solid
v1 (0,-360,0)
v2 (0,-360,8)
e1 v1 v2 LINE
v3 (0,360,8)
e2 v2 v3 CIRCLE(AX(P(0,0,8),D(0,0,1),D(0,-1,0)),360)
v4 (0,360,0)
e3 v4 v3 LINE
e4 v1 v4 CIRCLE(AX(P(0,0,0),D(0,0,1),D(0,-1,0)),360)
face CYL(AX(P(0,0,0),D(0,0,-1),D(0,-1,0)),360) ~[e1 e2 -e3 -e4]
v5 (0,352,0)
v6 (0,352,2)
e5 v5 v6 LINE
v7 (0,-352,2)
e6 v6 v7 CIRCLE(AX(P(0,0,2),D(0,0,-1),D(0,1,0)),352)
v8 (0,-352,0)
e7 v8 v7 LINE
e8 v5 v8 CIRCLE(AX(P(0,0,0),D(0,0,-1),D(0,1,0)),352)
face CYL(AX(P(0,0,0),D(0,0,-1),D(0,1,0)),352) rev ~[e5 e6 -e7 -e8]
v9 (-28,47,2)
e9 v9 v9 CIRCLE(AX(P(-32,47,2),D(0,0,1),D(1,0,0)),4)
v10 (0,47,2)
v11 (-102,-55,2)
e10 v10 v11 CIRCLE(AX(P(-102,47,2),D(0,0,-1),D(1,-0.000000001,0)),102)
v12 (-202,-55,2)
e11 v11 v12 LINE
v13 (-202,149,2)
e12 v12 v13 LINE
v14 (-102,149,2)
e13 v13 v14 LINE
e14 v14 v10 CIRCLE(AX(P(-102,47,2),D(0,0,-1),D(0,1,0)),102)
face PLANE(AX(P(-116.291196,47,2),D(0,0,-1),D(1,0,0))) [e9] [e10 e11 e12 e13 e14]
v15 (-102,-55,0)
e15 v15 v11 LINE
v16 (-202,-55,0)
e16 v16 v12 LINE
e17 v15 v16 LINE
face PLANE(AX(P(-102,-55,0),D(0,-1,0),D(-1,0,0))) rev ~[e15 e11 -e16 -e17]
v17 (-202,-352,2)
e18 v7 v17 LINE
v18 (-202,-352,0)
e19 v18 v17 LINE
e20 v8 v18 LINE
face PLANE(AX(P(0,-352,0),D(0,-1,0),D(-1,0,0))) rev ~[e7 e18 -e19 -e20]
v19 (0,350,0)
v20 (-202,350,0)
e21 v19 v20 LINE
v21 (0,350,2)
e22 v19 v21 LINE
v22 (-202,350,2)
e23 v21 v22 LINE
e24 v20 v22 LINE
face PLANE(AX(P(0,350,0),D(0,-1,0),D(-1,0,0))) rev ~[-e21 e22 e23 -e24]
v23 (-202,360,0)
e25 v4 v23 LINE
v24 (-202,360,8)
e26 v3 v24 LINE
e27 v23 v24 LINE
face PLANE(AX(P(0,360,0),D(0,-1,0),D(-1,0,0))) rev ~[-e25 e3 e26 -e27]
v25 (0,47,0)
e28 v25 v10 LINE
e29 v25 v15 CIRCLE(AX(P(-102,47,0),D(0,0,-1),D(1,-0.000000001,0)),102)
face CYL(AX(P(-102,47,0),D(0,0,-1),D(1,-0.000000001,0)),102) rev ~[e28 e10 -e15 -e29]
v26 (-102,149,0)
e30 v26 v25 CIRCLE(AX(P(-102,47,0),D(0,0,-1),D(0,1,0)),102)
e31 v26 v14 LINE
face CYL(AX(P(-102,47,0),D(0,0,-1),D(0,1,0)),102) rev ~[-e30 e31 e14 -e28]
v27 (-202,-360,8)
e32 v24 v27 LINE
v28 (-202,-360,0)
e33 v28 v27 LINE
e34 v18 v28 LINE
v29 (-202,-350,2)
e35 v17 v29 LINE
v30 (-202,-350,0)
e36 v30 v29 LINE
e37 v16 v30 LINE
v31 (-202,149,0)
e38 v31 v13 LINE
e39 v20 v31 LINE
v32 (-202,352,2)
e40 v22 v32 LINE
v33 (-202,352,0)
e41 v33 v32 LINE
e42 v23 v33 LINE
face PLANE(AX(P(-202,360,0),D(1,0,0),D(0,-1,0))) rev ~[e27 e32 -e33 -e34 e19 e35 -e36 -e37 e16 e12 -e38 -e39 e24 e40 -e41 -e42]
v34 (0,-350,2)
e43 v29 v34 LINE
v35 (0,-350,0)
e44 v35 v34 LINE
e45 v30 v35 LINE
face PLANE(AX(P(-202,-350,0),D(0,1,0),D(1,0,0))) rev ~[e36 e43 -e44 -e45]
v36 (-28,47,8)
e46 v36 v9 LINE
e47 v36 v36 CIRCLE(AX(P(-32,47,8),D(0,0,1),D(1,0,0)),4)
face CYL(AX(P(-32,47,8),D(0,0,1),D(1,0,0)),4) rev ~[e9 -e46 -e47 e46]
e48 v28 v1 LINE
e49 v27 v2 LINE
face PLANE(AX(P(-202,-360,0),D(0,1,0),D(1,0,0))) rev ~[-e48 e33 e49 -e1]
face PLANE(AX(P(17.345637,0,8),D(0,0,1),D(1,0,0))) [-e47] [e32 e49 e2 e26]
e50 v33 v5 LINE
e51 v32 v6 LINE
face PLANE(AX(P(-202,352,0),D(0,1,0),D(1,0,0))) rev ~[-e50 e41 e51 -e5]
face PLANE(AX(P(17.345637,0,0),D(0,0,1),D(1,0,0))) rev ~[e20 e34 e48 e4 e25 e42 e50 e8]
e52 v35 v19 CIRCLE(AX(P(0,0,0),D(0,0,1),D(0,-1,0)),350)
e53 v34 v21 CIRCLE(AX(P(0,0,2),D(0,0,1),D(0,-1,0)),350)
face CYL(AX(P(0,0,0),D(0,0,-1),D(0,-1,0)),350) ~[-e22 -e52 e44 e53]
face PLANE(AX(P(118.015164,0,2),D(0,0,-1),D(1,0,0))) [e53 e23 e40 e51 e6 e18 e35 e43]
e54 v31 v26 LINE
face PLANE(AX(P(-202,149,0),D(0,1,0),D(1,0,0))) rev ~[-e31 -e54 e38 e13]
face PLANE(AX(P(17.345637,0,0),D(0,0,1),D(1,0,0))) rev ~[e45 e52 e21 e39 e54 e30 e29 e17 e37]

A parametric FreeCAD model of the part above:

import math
import FreeCAD as App
import Part
import Sketcher

V = App.Vector
Q = App.Units.Quantity

doc = App.newDocument("Part")
params = doc.addObject("Spreadsheet::Sheet", "Params")
for row, (alias, value) in enumerate([
    ("sketch1_radius", "360 mm"),
    ("sketch1_width", "202 mm"),
    ("pad1_length", "8 mm"),
    ("sketch2_radius", "350 mm"),
    ("sketch2_radius2", "352 mm"),
    ("sketch2_width", "202 mm"),
    ("pocket1_length", "2 mm"),
    ("sketch3_diameter", "8 mm"),
    ("sketch4_radius", "102 mm"),
    ("sketch4_width", "100 mm"),
    ("pocket3_length", "2 mm"),
], start=1):
    params.set(f"A{row}", alias)
    params.set(f"B{row}", "=" + value)
    params.setAlias(f"B{row}", alias)

body = doc.addObject("PartDesign::Body", "Body")

# Sketch on XY plane
sketch1 = body.newObject("Sketcher::SketchObject", "Sketch")
sketch1.AttachmentSupport = (doc.getObject("XY_Plane"), [""])
sketch1.MapMode = "FlatFace"
sketch1.addGeometry([
    Part.ArcOfCircle(Part.Circle(V(0, 0, 0), V(0, 0, 1), 360), math.radians(-90), math.radians(90)),
    Part.LineSegment(V(0, 360, 0), V(-202, 360, 0)),
    Part.LineSegment(V(-202, 360, 0), V(-202, -360, 0)),
    Part.LineSegment(V(-202, -360, 0), V(0, -360, 0)),
], False)
sketch1.addConstraint([
    Sketcher.Constraint("Tangent", 0, 2, 1, 1),
    Sketcher.Constraint("Coincident", 1, 2, 2, 1),
    Sketcher.Constraint("Coincident", 2, 2, 3, 1),
    Sketcher.Constraint("Tangent", 3, 2, 0, 1),
    Sketcher.Constraint("Horizontal", 1),
    Sketcher.Constraint("Vertical", 2),
    Sketcher.Constraint("Horizontal", 3),
    Sketcher.Constraint("Coincident", 0, 3, -1, 1),
    Sketcher.Constraint("Radius", 0, Q("360 mm")),
    Sketcher.Constraint("DistanceX", 1, 2, 1, 1, Q("202 mm")),
])
sketch1.setExpression("Constraints[8]", "Params.sketch1_radius")
sketch1.setExpression("Constraints[9]", "Params.sketch1_width")
pad1 = body.newObject("PartDesign::Pad", "Pad")
pad1.Profile = sketch1
pad1.setExpression("Length", "Params.pad1_length")

# Sketch on XY plane
sketch2 = body.newObject("Sketcher::SketchObject", "Sketch001")
sketch2.AttachmentSupport = (doc.getObject("XY_Plane"), [""])
sketch2.MapMode = "FlatFace"
sketch2.addGeometry([
    Part.ArcOfCircle(Part.Circle(V(0, 0, 0), V(0, 0, 1), 350), math.radians(-90), math.radians(90)),  # 0
    Part.LineSegment(V(0, 350, 0), V(-202, 350, 0)),  # 1
    Part.LineSegment(V(-202, 350, 0), V(-202, 352, 0)),  # 2
    Part.LineSegment(V(-202, 352, 0), V(0, 352, 0)),  # 3
    Part.ArcOfCircle(Part.Circle(V(0, 0, 0), V(0, 0, 1), 352), math.radians(-90), math.radians(90)),  # 4
    Part.LineSegment(V(0, -352, 0), V(-202, -352, 0)),  # 5
    Part.LineSegment(V(-202, -352, 0), V(-202, -350, 0)),  # 6
    Part.LineSegment(V(-202, -350, 0), V(0, -350, 0)),  # 7
], False)
sketch2.addConstraint([
    Sketcher.Constraint("Tangent", 0, 2, 1, 1),
    Sketcher.Constraint("Coincident", 1, 2, 2, 1),
    Sketcher.Constraint("Coincident", 2, 2, 3, 1),
    Sketcher.Constraint("Tangent", 3, 2, 4, 2),
    Sketcher.Constraint("Tangent", 4, 1, 5, 1),
    Sketcher.Constraint("Coincident", 5, 2, 6, 1),
    Sketcher.Constraint("Coincident", 6, 2, 7, 1),
    Sketcher.Constraint("Tangent", 7, 2, 0, 1),
    Sketcher.Constraint("Horizontal", 1),
    Sketcher.Constraint("Vertical", 2),
    Sketcher.Constraint("Horizontal", 3),
    Sketcher.Constraint("Horizontal", 5),
    Sketcher.Constraint("Vertical", 6),
    Sketcher.Constraint("Horizontal", 7),
    Sketcher.Constraint("Coincident", 0, 3, -1, 1),
    Sketcher.Constraint("Coincident", 4, 3, -1, 1),
    Sketcher.Constraint("Vertical", 2, 2, 5, 2),
    Sketcher.Constraint("Radius", 0, Q("350 mm")),
    Sketcher.Constraint("Radius", 4, Q("352 mm")),
    Sketcher.Constraint("DistanceX", 1, 2, 1, 1, Q("202 mm")),
])
sketch2.setExpression("Constraints[17]", "Params.sketch2_radius")
sketch2.setExpression("Constraints[18]", "Params.sketch2_radius2")
sketch2.setExpression("Constraints[19]", "Params.sketch2_width")
pocket1 = body.newObject("PartDesign::Pocket", "Pocket")
pocket1.Profile = sketch2
pocket1.setExpression("Length", "Params.pocket1_length")
pocket1.Reversed = True

# Sketch on XY plane
sketch3 = body.newObject("Sketcher::SketchObject", "Sketch002")
sketch3.AttachmentSupport = (doc.getObject("XY_Plane"), [""])
sketch3.MapMode = "FlatFace"
sketch3.AttachmentOffset = App.Placement(V(0, 0, 8), App.Rotation())
sketch3.addGeometry(Part.Circle(V(-32, 47, 0), V(0, 0, 1), 4), False)
sketch3.addConstraint([
    Sketcher.Constraint("Diameter", 0, Q("8 mm")),
    Sketcher.Constraint("DistanceX", 0, 3, -1, 1, Q("32 mm")),
    Sketcher.Constraint("DistanceY", -1, 1, 0, 3, Q("47 mm")),
])
sketch3.setExpression("Constraints[0]", "Params.sketch3_diameter")
pocket2 = body.newObject("PartDesign::Pocket", "Pocket001")
pocket2.Profile = sketch3
pocket2.Type = "ThroughAll"

# Sketch on XY plane
sketch4 = body.newObject("Sketcher::SketchObject", "Sketch003")
sketch4.AttachmentSupport = (doc.getObject("XY_Plane"), [""])
sketch4.MapMode = "FlatFace"
sketch4.addGeometry([
    Part.LineSegment(V(-202, 149, 0), V(-102, 149, 0)),  # 0
    Part.ArcOfCircle(Part.Circle(V(-102, 47, 0), V(0, 0, 1), 102), math.radians(0), math.radians(90)),  # 1
    Part.ArcOfCircle(Part.Circle(V(-102, 47, 0), V(0, 0, 1), 102), math.radians(-90), math.radians(0)),  # 2
    Part.LineSegment(V(-102, -55, 0), V(-202, -55, 0)),  # 3
    Part.LineSegment(V(-202, -55, 0), V(-202, 149, 0)),  # 4
], False)
sketch4.addConstraint([
    Sketcher.Constraint("Tangent", 0, 2, 1, 2),
    Sketcher.Constraint("Tangent", 1, 1, 2, 2),
    Sketcher.Constraint("Tangent", 2, 1, 3, 1),
    Sketcher.Constraint("Coincident", 3, 2, 4, 1),
    Sketcher.Constraint("Coincident", 4, 2, 0, 1),
    Sketcher.Constraint("Horizontal", 0),
    Sketcher.Constraint("Horizontal", 3),
    Sketcher.Constraint("Vertical", 4),
    Sketcher.Constraint("Equal", 1, 2),
    Sketcher.Constraint("PointOnObject", 1, 1, -2),
    Sketcher.Constraint("Horizontal", 2, 3, 1, 1),
    Sketcher.Constraint("Radius", 1, Q("102 mm")),
    Sketcher.Constraint("DistanceX", 0, 1, 0, 2, Q("100 mm")),
    Sketcher.Constraint("DistanceY", -1, 1, 1, 3, Q("47 mm")),
])
sketch4.setExpression("Constraints[11]", "Params.sketch4_radius")
sketch4.setExpression("Constraints[12]", "Params.sketch4_width")
pocket3 = body.newObject("PartDesign::Pocket", "Pocket002")
pocket3.Profile = sketch4
pocket3.setExpression("Length", "Params.pocket3_length")
pocket3.Reversed = True

doc.recompute()
